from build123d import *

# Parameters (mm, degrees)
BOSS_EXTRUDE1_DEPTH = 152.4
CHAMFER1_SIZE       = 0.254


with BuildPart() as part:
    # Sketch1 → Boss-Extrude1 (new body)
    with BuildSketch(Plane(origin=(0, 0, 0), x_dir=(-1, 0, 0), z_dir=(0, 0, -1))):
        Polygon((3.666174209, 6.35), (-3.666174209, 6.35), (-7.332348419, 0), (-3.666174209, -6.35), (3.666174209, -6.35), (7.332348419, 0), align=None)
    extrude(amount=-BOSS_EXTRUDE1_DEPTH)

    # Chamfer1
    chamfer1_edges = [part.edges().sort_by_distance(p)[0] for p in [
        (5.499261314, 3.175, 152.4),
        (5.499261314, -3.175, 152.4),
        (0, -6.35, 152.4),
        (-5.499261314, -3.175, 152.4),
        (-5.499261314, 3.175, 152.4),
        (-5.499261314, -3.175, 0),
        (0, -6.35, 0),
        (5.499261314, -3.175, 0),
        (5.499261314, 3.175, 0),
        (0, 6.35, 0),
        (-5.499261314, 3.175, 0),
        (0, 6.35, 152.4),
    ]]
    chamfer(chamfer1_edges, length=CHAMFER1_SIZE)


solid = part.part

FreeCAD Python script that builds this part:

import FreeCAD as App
import Part
import Sketcher

V = App.Vector
Q = App.Units.Quantity


def edges_at(feature, points):
    """Names of the edges that pass closest to the given points."""
    edges = feature.Shape.Edges
    near = lambda p: min(range(len(edges)), key=lambda i: edges[i].distToShape(Part.Vertex(*p))[0])
    return sorted({f"Edge{near(p) + 1}" for p in points})

doc = App.newDocument("Part")
params = doc.addObject("Spreadsheet::Sheet", "Params")
for row, (alias, value) in enumerate([
    ("pad1_length", "6 in"),
    ("chamfer_size", "0.01 in"),
], start=1):
    params.set(f"A{row}", alias)
    params.set(f"B{row}", "=" + value)
    params.setAlias(f"B{row}", alias)

body = doc.addObject("PartDesign::Body", "Body")

# Sketch on XY plane
sketch1 = body.newObject("Sketcher::SketchObject", "Sketch")
sketch1.AttachmentSupport = (doc.getObject("XY_Plane"), [""])
sketch1.MapMode = "FlatFace"
sketch1.addGeometry([
    Part.LineSegment(V(-3.666174, 6.35, 0), V(3.666174, 6.35, 0)),  # 0
    Part.LineSegment(V(3.666174, 6.35, 0), V(7.332348, 0, 0)),  # 1
    Part.LineSegment(V(7.332348, 0, 0), V(3.666174, -6.35, 0)),  # 2
    Part.LineSegment(V(3.666174, -6.35, 0), V(-3.666174, -6.35, 0)),  # 3
    Part.LineSegment(V(-3.666174, -6.35, 0), V(-7.332348, 0, 0)),  # 4
    Part.LineSegment(V(-7.332348, 0, 0), V(-3.666174, 6.35, 0)),  # 5
], False)
sketch1.addConstraint([
    Sketcher.Constraint("Coincident", 0, 2, 1, 1),
    Sketcher.Constraint("Coincident", 1, 2, 2, 1),
    Sketcher.Constraint("Coincident", 2, 2, 3, 1),
    Sketcher.Constraint("Coincident", 3, 2, 4, 1),
    Sketcher.Constraint("Coincident", 4, 2, 5, 1),
    Sketcher.Constraint("Coincident", 5, 2, 0, 1),
    Sketcher.Constraint("Horizontal", 0),
    Sketcher.Constraint("Horizontal", 3),
    Sketcher.Constraint("Symmetric", 0, 2, 3, 2, -1, 1),
    Sketcher.Constraint("Symmetric", 1, 2, 4, 2, -1, 1),
    Sketcher.Constraint("PointOnObject", 1, 2, -1),
    Sketcher.Constraint("Parallel", 2, 5),
    Sketcher.Constraint("Vertical", 0, 2, 2, 2),
    Sketcher.Constraint("Angle", 1, Q("-60 deg")),
    Sketcher.Constraint("DistanceY", 2, 2, 0, 2, Q("0.5 in")),
    Sketcher.Constraint("DistanceX", 0, 1, 0, 2, Q("7.332348 mm")),
])
pad1 = body.newObject("PartDesign::Pad", "Pad")
pad1.Profile = sketch1
pad1.setExpression("Length", "Params.pad1_length")
doc.recompute()

chamfer = body.newObject("PartDesign::Chamfer", "Chamfer")
chamfer.Base = (pad1, edges_at(pad1, [
    (5.499, 3.175, 152.4),
    (5.499, -3.175, 152.4),
    (0, -6.35, 152.4),
    (-5.499, -3.175, 152.4),
    (-5.499, 3.175, 152.4),
    (-5.499, -3.175, 0),
    (0, -6.35, 0),
    (5.499, -3.175, 0),
    (5.499, 3.175, 0),
    (0, 6.35, 0),
    (-5.499, 3.175, 0),
    (0, 6.35, 152.4),
]))
chamfer.setExpression("Size", "Params.chamfer_size")

doc.recompute()
